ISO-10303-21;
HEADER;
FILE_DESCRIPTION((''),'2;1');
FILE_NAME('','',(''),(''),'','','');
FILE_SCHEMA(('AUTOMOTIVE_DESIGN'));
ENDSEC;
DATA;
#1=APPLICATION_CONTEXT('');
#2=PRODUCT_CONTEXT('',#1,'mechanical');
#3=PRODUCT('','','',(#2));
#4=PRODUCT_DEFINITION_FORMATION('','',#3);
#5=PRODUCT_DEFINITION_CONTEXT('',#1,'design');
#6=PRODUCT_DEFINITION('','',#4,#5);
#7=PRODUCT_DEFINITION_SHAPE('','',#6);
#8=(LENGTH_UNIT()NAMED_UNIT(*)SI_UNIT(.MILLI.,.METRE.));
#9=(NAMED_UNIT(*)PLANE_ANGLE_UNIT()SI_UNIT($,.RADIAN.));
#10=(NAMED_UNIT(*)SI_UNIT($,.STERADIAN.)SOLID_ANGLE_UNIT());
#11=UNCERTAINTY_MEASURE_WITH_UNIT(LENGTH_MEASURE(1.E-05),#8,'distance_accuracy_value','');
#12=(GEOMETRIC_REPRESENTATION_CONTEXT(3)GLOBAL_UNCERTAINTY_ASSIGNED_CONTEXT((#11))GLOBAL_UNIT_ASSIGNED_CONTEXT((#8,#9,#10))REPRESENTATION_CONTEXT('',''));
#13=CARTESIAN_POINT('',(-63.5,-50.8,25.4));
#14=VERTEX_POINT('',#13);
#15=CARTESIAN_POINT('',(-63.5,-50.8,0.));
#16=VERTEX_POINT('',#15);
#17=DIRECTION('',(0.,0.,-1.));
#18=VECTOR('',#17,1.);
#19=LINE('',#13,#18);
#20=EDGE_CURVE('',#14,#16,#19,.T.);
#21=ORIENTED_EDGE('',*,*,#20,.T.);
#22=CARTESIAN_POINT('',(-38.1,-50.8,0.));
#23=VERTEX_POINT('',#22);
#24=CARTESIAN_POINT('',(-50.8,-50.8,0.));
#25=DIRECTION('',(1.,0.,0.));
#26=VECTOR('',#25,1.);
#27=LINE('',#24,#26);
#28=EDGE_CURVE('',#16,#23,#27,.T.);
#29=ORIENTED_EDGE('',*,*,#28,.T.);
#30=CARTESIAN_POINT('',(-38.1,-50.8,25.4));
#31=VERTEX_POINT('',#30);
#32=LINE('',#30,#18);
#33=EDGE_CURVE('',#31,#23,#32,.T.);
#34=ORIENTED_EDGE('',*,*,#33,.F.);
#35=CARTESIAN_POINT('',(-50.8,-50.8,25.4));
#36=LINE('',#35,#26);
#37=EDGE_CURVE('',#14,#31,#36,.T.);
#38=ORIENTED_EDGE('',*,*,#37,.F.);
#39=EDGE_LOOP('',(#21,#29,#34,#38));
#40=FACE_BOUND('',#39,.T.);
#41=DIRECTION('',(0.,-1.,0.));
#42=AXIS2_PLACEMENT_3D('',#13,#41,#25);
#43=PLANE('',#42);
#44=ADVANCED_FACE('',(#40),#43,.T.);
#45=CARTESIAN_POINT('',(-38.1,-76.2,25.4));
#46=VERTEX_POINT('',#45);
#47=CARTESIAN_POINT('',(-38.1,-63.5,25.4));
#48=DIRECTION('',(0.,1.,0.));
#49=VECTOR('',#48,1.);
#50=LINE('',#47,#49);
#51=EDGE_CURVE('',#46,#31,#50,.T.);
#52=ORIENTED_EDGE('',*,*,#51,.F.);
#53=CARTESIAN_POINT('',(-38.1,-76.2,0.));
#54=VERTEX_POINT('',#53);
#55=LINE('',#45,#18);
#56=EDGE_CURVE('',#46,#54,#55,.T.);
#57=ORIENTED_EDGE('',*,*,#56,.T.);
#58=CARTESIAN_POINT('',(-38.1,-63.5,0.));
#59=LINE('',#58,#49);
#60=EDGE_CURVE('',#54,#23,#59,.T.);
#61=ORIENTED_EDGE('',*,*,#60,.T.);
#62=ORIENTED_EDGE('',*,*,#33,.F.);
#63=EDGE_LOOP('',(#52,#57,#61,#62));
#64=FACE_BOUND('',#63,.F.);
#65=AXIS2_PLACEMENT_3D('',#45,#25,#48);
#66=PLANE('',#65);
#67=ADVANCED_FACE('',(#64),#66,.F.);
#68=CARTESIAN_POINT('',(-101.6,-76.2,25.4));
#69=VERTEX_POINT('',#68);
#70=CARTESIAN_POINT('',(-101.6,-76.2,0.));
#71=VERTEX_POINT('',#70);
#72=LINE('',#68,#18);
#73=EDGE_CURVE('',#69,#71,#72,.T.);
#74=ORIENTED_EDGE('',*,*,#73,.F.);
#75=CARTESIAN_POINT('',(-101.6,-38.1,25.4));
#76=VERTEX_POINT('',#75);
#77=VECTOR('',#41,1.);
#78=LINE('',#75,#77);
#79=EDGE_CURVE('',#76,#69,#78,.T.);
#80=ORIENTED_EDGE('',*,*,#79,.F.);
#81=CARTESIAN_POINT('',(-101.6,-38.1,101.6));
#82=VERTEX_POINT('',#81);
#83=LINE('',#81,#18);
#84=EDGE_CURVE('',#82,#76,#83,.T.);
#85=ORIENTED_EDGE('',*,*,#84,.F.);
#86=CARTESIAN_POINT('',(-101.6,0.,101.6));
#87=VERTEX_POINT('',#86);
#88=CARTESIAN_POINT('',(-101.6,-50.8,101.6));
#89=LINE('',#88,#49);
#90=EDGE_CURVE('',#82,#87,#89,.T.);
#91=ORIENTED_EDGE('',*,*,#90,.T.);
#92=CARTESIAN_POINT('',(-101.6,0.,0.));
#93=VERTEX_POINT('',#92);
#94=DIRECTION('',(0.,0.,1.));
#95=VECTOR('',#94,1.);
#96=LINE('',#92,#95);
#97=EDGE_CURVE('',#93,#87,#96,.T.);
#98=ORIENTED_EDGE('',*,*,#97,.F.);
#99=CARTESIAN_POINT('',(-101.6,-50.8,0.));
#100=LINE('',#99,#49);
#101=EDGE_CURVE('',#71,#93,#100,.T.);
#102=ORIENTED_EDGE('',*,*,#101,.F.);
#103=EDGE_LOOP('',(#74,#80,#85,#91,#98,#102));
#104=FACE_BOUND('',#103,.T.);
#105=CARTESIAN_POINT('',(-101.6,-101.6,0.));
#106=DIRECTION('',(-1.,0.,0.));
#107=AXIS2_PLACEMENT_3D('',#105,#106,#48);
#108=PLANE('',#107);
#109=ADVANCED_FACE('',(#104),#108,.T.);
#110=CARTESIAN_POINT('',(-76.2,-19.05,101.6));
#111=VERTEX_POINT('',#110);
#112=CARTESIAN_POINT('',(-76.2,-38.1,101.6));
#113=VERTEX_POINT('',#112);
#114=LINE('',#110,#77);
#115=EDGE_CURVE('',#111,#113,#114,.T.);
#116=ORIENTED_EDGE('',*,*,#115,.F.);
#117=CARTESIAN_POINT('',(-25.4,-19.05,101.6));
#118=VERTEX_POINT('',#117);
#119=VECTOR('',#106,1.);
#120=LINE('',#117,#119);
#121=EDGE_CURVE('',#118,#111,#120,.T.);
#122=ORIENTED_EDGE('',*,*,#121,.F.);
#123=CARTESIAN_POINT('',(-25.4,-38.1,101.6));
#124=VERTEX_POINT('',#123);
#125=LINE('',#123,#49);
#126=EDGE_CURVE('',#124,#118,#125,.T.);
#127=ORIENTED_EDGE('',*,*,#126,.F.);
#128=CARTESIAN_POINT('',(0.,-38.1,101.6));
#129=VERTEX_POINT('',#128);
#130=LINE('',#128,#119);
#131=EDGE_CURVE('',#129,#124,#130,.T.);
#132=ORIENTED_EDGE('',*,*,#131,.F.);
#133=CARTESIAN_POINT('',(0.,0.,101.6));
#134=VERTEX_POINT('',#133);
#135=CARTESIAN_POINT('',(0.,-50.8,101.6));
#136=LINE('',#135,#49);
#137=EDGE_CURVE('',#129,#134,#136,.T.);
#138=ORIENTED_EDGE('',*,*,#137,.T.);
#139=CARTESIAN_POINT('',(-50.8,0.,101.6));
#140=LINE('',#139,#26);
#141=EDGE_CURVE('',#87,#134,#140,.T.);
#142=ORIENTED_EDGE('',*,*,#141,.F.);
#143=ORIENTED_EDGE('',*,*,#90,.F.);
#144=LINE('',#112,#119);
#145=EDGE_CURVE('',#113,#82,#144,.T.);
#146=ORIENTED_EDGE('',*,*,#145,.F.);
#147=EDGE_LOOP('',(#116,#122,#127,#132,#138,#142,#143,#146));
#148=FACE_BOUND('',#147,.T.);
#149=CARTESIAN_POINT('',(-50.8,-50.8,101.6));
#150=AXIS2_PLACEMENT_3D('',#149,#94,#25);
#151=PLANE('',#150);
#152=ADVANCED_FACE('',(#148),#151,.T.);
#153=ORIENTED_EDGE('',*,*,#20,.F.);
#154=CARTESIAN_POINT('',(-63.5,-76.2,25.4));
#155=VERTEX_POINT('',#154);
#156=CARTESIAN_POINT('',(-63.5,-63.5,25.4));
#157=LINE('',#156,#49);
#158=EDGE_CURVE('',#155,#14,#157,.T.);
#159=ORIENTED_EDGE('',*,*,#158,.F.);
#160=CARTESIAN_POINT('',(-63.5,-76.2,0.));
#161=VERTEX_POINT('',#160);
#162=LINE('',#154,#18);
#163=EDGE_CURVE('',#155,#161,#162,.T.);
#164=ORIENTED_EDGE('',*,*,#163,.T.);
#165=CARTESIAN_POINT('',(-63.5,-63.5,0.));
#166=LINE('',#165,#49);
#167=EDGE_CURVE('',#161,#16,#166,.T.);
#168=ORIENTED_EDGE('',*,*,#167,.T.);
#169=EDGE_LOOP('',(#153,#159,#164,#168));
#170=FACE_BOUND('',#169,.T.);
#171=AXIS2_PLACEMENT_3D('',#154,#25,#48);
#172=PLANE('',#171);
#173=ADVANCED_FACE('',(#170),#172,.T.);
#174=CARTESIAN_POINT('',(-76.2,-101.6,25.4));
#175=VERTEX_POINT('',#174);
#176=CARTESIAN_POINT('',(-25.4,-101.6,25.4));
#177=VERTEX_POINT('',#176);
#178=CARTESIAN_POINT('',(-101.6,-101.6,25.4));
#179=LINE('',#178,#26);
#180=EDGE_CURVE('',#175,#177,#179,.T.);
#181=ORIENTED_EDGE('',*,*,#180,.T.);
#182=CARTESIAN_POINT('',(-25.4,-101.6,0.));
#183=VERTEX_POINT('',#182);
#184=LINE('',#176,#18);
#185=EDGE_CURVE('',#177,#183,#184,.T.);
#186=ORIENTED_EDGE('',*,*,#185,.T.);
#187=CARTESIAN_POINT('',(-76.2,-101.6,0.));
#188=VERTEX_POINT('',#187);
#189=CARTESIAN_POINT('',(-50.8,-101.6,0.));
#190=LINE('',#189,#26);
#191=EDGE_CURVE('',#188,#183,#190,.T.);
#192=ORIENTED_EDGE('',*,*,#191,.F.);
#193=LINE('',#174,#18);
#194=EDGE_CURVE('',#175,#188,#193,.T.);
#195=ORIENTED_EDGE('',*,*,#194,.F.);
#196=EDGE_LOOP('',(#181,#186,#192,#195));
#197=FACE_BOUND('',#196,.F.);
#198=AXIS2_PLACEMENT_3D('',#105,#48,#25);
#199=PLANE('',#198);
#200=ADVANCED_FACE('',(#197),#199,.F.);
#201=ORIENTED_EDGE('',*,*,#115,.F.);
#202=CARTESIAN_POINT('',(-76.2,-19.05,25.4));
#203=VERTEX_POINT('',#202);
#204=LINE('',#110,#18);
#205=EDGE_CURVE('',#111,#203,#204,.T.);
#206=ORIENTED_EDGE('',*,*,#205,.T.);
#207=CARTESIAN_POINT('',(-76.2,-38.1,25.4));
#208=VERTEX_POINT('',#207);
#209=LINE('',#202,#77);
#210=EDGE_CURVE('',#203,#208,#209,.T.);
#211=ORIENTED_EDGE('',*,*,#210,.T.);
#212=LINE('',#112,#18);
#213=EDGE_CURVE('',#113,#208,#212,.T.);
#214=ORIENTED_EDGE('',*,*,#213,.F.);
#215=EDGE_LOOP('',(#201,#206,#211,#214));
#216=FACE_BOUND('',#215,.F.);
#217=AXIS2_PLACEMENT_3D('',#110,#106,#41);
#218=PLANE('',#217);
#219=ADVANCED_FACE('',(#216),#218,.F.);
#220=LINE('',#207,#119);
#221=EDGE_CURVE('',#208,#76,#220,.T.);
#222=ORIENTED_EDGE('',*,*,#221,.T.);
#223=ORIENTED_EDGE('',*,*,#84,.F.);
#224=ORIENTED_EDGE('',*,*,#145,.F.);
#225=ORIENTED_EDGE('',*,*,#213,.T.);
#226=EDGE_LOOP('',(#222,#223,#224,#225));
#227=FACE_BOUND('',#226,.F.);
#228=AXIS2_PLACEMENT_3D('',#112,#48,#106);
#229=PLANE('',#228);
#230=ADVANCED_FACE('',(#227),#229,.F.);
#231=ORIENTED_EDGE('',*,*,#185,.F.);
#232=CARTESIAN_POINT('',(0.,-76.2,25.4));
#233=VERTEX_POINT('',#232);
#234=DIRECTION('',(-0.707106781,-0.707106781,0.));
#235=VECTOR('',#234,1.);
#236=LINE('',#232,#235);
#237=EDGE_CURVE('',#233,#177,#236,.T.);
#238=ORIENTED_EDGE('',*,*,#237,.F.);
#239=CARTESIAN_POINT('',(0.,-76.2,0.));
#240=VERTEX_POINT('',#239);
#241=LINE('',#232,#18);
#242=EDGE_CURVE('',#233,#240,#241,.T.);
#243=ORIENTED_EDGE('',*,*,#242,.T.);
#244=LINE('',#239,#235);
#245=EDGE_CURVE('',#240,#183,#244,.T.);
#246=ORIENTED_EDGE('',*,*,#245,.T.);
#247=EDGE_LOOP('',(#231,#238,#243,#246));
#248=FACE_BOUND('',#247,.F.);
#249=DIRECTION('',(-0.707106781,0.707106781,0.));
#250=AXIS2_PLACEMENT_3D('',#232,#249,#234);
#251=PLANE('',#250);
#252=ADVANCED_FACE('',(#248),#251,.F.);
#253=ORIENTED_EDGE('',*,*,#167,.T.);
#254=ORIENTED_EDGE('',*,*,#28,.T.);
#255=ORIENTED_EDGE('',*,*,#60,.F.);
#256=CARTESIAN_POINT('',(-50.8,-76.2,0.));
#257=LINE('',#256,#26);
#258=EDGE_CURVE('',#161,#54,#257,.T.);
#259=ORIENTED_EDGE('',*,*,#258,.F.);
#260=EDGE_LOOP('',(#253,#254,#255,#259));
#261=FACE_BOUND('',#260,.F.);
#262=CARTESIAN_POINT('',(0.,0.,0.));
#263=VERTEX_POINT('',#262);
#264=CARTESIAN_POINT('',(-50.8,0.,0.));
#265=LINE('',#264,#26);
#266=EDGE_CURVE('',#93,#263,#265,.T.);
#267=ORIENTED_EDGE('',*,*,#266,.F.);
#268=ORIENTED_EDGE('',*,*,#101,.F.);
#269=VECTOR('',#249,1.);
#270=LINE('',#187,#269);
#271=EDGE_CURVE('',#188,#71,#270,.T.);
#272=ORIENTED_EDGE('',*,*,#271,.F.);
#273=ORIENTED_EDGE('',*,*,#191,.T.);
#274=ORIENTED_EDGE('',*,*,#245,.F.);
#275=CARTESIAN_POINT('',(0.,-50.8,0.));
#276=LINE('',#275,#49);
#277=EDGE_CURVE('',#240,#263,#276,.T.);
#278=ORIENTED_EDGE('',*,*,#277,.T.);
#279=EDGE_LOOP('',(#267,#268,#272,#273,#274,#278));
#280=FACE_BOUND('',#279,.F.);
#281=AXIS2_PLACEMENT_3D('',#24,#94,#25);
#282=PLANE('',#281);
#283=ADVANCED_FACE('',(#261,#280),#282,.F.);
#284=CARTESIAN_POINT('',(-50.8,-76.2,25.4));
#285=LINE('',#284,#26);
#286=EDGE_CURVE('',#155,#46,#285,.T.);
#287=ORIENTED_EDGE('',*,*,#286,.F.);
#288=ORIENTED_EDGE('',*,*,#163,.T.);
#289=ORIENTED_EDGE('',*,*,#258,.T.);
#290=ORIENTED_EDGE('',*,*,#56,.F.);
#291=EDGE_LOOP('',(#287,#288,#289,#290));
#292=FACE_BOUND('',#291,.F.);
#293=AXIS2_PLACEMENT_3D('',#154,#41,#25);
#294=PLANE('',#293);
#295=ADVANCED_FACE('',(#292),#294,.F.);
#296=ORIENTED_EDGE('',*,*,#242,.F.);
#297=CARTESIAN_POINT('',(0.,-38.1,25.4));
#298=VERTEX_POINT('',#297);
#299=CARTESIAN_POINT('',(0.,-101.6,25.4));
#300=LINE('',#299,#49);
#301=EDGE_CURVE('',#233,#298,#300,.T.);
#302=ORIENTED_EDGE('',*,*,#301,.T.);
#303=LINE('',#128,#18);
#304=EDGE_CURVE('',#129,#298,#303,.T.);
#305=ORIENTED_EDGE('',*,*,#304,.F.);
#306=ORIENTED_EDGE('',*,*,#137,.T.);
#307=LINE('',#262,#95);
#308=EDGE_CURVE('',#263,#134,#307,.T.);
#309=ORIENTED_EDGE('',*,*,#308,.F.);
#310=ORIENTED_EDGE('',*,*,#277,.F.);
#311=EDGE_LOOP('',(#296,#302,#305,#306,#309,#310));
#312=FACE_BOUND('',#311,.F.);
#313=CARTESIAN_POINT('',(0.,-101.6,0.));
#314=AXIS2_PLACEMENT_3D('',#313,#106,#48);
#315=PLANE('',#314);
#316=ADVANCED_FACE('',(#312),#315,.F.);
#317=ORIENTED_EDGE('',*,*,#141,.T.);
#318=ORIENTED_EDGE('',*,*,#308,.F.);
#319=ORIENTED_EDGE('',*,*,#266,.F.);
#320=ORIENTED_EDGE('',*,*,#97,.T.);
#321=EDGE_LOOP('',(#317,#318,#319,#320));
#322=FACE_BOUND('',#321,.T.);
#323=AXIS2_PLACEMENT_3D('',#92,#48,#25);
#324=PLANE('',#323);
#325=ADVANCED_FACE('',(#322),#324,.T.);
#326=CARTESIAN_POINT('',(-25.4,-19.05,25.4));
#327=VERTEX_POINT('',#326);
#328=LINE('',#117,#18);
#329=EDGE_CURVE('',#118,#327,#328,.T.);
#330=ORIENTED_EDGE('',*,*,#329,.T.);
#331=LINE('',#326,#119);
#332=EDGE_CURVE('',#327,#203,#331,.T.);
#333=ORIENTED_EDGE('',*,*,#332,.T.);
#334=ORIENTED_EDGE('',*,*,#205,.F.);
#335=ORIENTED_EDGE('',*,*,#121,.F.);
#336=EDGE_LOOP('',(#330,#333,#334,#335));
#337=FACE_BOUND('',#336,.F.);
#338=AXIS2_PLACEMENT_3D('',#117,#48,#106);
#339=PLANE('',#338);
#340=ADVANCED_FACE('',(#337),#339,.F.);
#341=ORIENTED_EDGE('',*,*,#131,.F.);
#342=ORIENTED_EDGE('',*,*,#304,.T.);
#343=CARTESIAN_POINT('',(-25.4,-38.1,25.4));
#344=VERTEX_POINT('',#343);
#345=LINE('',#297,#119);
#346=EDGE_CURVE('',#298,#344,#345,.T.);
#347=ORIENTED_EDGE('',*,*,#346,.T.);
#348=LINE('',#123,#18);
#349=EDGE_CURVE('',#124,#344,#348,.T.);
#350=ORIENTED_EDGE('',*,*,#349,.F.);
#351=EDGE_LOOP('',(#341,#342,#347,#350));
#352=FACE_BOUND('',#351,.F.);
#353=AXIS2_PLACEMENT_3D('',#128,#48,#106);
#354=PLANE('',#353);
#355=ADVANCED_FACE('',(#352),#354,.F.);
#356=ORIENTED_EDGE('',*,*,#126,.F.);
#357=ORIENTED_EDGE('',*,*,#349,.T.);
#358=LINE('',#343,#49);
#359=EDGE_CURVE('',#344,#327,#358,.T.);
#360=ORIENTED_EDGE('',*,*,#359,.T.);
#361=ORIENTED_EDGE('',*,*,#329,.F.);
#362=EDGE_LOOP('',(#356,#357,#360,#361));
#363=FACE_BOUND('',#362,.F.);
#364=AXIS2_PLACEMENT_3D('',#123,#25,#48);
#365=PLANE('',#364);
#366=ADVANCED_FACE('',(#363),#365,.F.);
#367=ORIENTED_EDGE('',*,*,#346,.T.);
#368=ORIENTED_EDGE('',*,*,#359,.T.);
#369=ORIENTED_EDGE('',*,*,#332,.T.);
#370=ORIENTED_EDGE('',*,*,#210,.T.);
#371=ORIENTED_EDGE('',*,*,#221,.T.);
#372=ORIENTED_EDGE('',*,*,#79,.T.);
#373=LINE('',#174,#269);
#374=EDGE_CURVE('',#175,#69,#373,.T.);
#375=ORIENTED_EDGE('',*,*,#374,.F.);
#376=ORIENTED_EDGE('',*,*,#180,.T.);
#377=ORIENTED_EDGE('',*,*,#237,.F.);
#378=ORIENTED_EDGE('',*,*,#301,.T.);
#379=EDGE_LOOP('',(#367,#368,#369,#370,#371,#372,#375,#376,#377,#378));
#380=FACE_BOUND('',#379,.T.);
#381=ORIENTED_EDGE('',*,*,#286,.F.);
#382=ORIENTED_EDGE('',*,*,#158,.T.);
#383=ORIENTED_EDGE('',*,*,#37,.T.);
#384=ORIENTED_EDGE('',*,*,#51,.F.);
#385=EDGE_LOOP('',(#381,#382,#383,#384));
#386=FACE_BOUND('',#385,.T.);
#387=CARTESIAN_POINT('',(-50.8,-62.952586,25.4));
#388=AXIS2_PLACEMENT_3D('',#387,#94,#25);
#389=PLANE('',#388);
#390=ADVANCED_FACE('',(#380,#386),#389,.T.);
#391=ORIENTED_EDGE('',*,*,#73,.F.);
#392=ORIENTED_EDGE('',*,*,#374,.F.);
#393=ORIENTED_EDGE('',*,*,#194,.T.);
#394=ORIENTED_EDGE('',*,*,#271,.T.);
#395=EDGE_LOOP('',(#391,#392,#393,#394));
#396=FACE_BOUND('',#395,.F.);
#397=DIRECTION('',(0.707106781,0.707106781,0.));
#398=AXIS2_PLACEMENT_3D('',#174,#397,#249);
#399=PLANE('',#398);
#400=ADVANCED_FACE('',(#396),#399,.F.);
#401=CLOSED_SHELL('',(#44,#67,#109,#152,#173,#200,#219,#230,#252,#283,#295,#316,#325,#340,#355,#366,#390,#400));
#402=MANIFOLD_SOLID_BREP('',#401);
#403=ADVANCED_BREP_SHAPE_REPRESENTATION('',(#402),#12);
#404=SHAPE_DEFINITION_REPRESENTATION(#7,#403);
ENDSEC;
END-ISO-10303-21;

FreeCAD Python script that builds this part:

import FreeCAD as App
import Part
import Sketcher
Q = App.Units.Quantity

doc = App.newDocument("Part")
body = doc.addObject("PartDesign::Body", "Body")

sketch1 = body.newObject("Sketcher::SketchObject", "Sketch")
sketch1.AttachmentSupport = (doc.getObject("XY_Plane"), [""])
sketch1.MapMode = "FlatFace"
sketch1.addGeometry(Part.LineSegment(App.Vector(-102, 0, 0), App.Vector(-102, -102, 0)), False)
sketch1.addGeometry(Part.LineSegment(App.Vector(-102, -102, 0), App.Vector(0, -102, 0)), False)
sketch1.addGeometry(Part.LineSegment(App.Vector(0, -102, 0), App.Vector(0, 0, 0)), False)
sketch1.addGeometry(Part.LineSegment(App.Vector(0, 0, 0), App.Vector(-102, 0, 0)), False)
sketch1.addConstraint(Sketcher.Constraint("Coincident", 0, 2, 1, 1))
sketch1.addConstraint(Sketcher.Constraint("Coincident", 1, 2, 2, 1))
sketch1.addConstraint(Sketcher.Constraint("Coincident", 2, 2, 3, 1))
sketch1.addConstraint(Sketcher.Constraint("Coincident", 3, 2, 0, 1))
sketch1.addConstraint(Sketcher.Constraint("Vertical", 0))
sketch1.addConstraint(Sketcher.Constraint("Horizontal", 1))
sketch1.addConstraint(Sketcher.Constraint("Vertical", 2))
sketch1.addConstraint(Sketcher.Constraint("Horizontal", 3))
sketch1.addConstraint(Sketcher.Constraint("Coincident", 2, 2, -1, 1))
sketch1.addConstraint(Sketcher.Constraint("Equal", 3, 0))
sketch1.addConstraint(Sketcher.Constraint("DistanceX", 1, 1, 1, 2, Q("4 in")))
pad1 = body.newObject("PartDesign::Pad", "Pad")
pad1.Profile = sketch1
pad1.Length = Q("4 in")

sketch2 = body.newObject("Sketcher::SketchObject", "Sketch001")
sketch2.AttachmentSupport = (doc.getObject("XY_Plane"), [""])
sketch2.MapMode = "FlatFace"
sketch2.AttachmentOffset = App.Placement(App.Vector(0, 0, 4 * 25.4), App.Rotation())
sketch2.addGeometry(Part.LineSegment(App.Vector(-25, -19, 0), App.Vector(-76, -19, 0)), False)
sketch2.addGeometry(Part.LineSegment(App.Vector(-76, -19, 0), App.Vector(-76, -38, 0)), False)
sketch2.addGeometry(Part.LineSegment(App.Vector(-76, -38, 0), App.Vector(-102, -38, 0)), False)
sketch2.addGeometry(Part.LineSegment(App.Vector(-102, -38, 0), App.Vector(-102, -102, 0)), False)
sketch2.addGeometry(Part.LineSegment(App.Vector(-102, -102, 0), App.Vector(0, -102, 0)), False)
sketch2.addGeometry(Part.LineSegment(App.Vector(0, -102, 0), App.Vector(0, -38, 0)), False)
sketch2.addGeometry(Part.LineSegment(App.Vector(0, -38, 0), App.Vector(-25, -38, 0)), False)
sketch2.addGeometry(Part.LineSegment(App.Vector(-25, -38, 0), App.Vector(-25, -19, 0)), False)
sketch2.addConstraint(Sketcher.Constraint("Coincident", 0, 2, 1, 1))
sketch2.addConstraint(Sketcher.Constraint("Coincident", 1, 2, 2, 1))
sketch2.addConstraint(Sketcher.Constraint("Coincident", 2, 2, 3, 1))
sketch2.addConstraint(Sketcher.Constraint("Coincident", 3, 2, 4, 1))
sketch2.addConstraint(Sketcher.Constraint("Coincident", 4, 2, 5, 1))
sketch2.addConstraint(Sketcher.Constraint("Coincident", 5, 2, 6, 1))
sketch2.addConstraint(Sketcher.Constraint("Coincident", 6, 2, 7, 1))
sketch2.addConstraint(Sketcher.Constraint("Coincident", 7, 2, 0, 1))
sketch2.addConstraint(Sketcher.Constraint("Horizontal", 0))
sketch2.addConstraint(Sketcher.Constraint("Vertical", 1))
sketch2.addConstraint(Sketcher.Constraint("Horizontal", 2))
sketch2.addConstraint(Sketcher.Constraint("Vertical", 3))
sketch2.addConstraint(Sketcher.Constraint("Horizontal", 4))
sketch2.addConstraint(Sketcher.Constraint("Vertical", 5))
sketch2.addConstraint(Sketcher.Constraint("Horizontal", 6))
sketch2.addConstraint(Sketcher.Constraint("Vertical", 7))
sketch2.addConstraint(Sketcher.Constraint("PointOnObject", 4, 2, -2))
sketch2.addConstraint(Sketcher.Constraint("Horizontal", 2, 2, 5, 2))
sketch2.addConstraint(Sketcher.Constraint("Equal", 2, 6))
sketch2.addConstraint(Sketcher.Constraint("DistanceX", 0, 2, 0, 1, Q("2 in")))
sketch2.addConstraint(Sketcher.Constraint("DistanceX", 2, 2, 2, 1, Q("1 in")))
sketch2.addConstraint(Sketcher.Constraint("DistanceY", 3, 2, 3, 1, Q("2.5 in")))
sketch2.addConstraint(Sketcher.Constraint("DistanceY", 3, 2, -1, 1, Q("4 in")))
sketch2.addConstraint(Sketcher.Constraint("DistanceY", 1, 2, 1, 1, Q("0.75 in")))
pocket1 = body.newObject("PartDesign::Pocket", "Pocket")
pocket1.Profile = sketch2
pocket1.Length = Q("3 in")

sketch3 = body.newObject("Sketcher::SketchObject", "Sketch002")
sketch3.AttachmentSupport = (doc.getObject("XY_Plane"), [""])
sketch3.MapMode = "FlatFace"
sketch3.AttachmentOffset = App.Placement(App.Vector(0, 0, 1 * 25.4), App.Rotation())
sketch3.addGeometry(Part.LineSegment(App.Vector(-64, -51, 0), App.Vector(-64, -76, 0)), False)
sketch3.addGeometry(Part.LineSegment(App.Vector(-64, -76, 0), App.Vector(-38, -76, 0)), False)
sketch3.addGeometry(Part.LineSegment(App.Vector(-38, -76, 0), App.Vector(-38, -51, 0)), False)
sketch3.addGeometry(Part.LineSegment(App.Vector(-38, -51, 0), App.Vector(-64, -51, 0)), False)
sketch3.addGeometry(Part.LineSegment(App.Vector(0, -102, 0), App.Vector(0, -76, 0)), False)
sketch3.addGeometry(Part.LineSegment(App.Vector(0, -76, 0), App.Vector(-25, -102, 0)), False)
sketch3.addGeometry(Part.LineSegment(App.Vector(-25, -102, 0), App.Vector(0, -102, 0)), False)
sketch3.addGeometry(Part.LineSegment(App.Vector(-76, -102, 0), App.Vector(-102, -76, 0)), False)
sketch3.addGeometry(Part.LineSegment(App.Vector(-102, -76, 0), App.Vector(-102, -102, 0)), False)
sketch3.addGeometry(Part.LineSegment(App.Vector(-102, -102, 0), App.Vector(-76, -102, 0)), False)
sketch3.addConstraint(Sketcher.Constraint("Coincident", 0, 2, 1, 1))
sketch3.addConstraint(Sketcher.Constraint("Coincident", 1, 2, 2, 1))
sketch3.addConstraint(Sketcher.Constraint("Coincident", 2, 2, 3, 1))
sketch3.addConstraint(Sketcher.Constraint("Coincident", 3, 2, 0, 1))
sketch3.addConstraint(Sketcher.Constraint("Coincident", 4, 2, 5, 1))
sketch3.addConstraint(Sketcher.Constraint("Coincident", 5, 2, 6, 1))
sketch3.addConstraint(Sketcher.Constraint("Coincident", 6, 2, 4, 1))
sketch3.addConstraint(Sketcher.Constraint("Coincident", 7, 2, 8, 1))
sketch3.addConstraint(Sketcher.Constraint("Coincident", 8, 2, 9, 1))
sketch3.addConstraint(Sketcher.Constraint("Coincident", 9, 2, 7, 1))
sketch3.addConstraint(Sketcher.Constraint("Vertical", 0))
sketch3.addConstraint(Sketcher.Constraint("Horizontal", 1))
sketch3.addConstraint(Sketcher.Constraint("Vertical", 2))
sketch3.addConstraint(Sketcher.Constraint("Horizontal", 3))
sketch3.addConstraint(Sketcher.Constraint("Vertical", 4))
sketch3.addConstraint(Sketcher.Constraint("Horizontal", 6))
sketch3.addConstraint(Sketcher.Constraint("Vertical", 8))
sketch3.addConstraint(Sketcher.Constraint("Horizontal", 9))
sketch3.addConstraint(Sketcher.Constraint("PointOnObject", 4, 2, -2))
sketch3.addConstraint(Sketcher.Constraint("Perpendicular", 5, 7))
sketch3.addConstraint(Sketcher.Constraint("Horizontal", 1, 2, 4, 2))
sketch3.addConstraint(Sketcher.Constraint("Horizontal", 4, 2, 7, 2))
sketch3.addConstraint(Sketcher.Constraint("Horizontal", 6, 2, 8, 2))
sketch3.addConstraint(Sketcher.Constraint("Equal", 3, 6))
sketch3.addConstraint(Sketcher.Constraint("Equal", 6, 9))
sketch3.addConstraint(Sketcher.Constraint("Equal", 9, 0))
sketch3.addConstraint(Sketcher.Constraint("DistanceX", 1, 1, 1, 2, Q("1 in")))
sketch3.addConstraint(Sketcher.Constraint("DistanceY", 0, 2, -1, 1, Q("3 in")))
sketch3.addConstraint(Sketcher.Constraint("DistanceX", 7, 2, -1, 1, Q("4 in")))
sketch3.addConstraint(Sketcher.Constraint("DistanceX", 0, 2, -1, 1, Q("2.5 in")))
pocket2 = body.newObject("PartDesign::Pocket", "Pocket001")
pocket2.Profile = sketch3
pocket2.Length = Q("1 in")

doc.recompute()
